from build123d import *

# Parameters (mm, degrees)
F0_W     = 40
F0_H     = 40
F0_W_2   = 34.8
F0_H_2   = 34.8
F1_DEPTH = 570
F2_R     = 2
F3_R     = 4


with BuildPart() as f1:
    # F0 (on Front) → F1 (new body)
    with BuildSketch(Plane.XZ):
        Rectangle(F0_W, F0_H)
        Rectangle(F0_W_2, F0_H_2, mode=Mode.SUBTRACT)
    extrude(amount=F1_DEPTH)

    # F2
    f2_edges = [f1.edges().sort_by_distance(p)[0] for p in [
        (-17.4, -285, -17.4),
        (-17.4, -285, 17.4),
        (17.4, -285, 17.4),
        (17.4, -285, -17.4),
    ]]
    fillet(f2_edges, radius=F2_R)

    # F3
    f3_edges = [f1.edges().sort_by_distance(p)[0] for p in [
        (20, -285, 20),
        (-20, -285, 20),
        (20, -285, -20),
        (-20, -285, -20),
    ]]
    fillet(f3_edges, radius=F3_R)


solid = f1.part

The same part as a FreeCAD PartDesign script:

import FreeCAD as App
import Part
import Sketcher

V = App.Vector


def edges_at(feature, points):
    """Names of the edges that pass closest to the given points."""
    edges = feature.Shape.Edges
    near = lambda p: min(range(len(edges)), key=lambda i: edges[i].distToShape(Part.Vertex(*p))[0])
    return sorted({f"Edge{near(p) + 1}" for p in points})


def add_polygon(sketch, points):
    """Adds a closed chain of lines whose ends are joined by coincident constraints."""
    first, n = sketch.GeometryCount, len(points)
    for a, b in zip(points, points[1:] + points[:1]):
        sketch.addGeometry(Part.LineSegment(App.Vector(*a, 0), App.Vector(*b, 0)), False)
    for i in range(n):
        sketch.addConstraint(Sketcher.Constraint("Coincident", first + i, 2, first + (i + 1) % n, 1))

doc = App.newDocument("Part")
params = doc.addObject("Spreadsheet::Sheet", "Params")
for row, (alias, value) in enumerate([
    ("sketch1_width", "40 mm"),
    ("sketch1_width2", "34.8 mm"),
    ("pad1_length", "570 mm"),
    ("fillet_radius", "2 mm"),
    ("fillet2_radius", "4 mm"),
], start=1):
    params.set(f"A{row}", alias)
    params.set(f"B{row}", "=" + value)
    params.setAlias(f"B{row}", alias)

body = doc.addObject("PartDesign::Body", "Body")

# Sketch on XZ plane
sketch1 = body.newObject("Sketcher::SketchObject", "Sketch")
sketch1.AttachmentSupport = (doc.getObject("XZ_Plane"), [""])
sketch1.MapMode = "FlatFace"
add_polygon(sketch1, [(-20, 20), (-20, -20), (20, -20), (20, 20)])  # lines 0-3
add_polygon(sketch1, [(17, -17), (-17, -17), (-17, 17), (17, 17)])  # lines 4-7
sketch1.addConstraint([
    Sketcher.Constraint("Vertical", 0),
    Sketcher.Constraint("Horizontal", 1),
    Sketcher.Constraint("Vertical", 2),
    Sketcher.Constraint("Horizontal", 3),
    Sketcher.Constraint("Horizontal", 4),
    Sketcher.Constraint("Vertical", 5),
    Sketcher.Constraint("Horizontal", 6),
    Sketcher.Constraint("Vertical", 7),
    Sketcher.Constraint("Symmetric", 0, 2, 2, 2, -1, 1),
    Sketcher.Constraint("Symmetric", 4, 2, 6, 2, -1, 1),
    Sketcher.Constraint("Equal", 3, 0),
    Sketcher.Constraint("Equal", 6, 5),
    Sketcher.Constraint("DistanceX", 1, 1, 1, 2, 40.0),
    Sketcher.Constraint("DistanceX", 4, 2, 4, 1, 34.8),
])
sketch1.setExpression("Constraints[20]", "Params.sketch1_width")
sketch1.setExpression("Constraints[21]", "Params.sketch1_width2")
pad1 = body.newObject("PartDesign::Pad", "Pad")
pad1.Profile = sketch1
pad1.setExpression("Length", "Params.pad1_length")
doc.recompute()

fillet = body.newObject("PartDesign::Fillet", "Fillet")
fillet.Base = (pad1, edges_at(pad1, [
    (-17.4, -285, -17.4),
    (-17.4, -285, 17.4),
    (17.4, -285, 17.4),
    (17.4, -285, -17.4),
]))
fillet.setExpression("Radius", "Params.fillet_radius")
doc.recompute()

fillet2 = body.newObject("PartDesign::Fillet", "Fillet001")
fillet2.Base = (fillet, edges_at(fillet, [
    (20, -285, 20),
    (-20, -285, 20),
    (20, -285, -20),
    (-20, -285, -20),
]))
fillet2.setExpression("Radius", "Params.fillet2_radius")

doc.recompute()
